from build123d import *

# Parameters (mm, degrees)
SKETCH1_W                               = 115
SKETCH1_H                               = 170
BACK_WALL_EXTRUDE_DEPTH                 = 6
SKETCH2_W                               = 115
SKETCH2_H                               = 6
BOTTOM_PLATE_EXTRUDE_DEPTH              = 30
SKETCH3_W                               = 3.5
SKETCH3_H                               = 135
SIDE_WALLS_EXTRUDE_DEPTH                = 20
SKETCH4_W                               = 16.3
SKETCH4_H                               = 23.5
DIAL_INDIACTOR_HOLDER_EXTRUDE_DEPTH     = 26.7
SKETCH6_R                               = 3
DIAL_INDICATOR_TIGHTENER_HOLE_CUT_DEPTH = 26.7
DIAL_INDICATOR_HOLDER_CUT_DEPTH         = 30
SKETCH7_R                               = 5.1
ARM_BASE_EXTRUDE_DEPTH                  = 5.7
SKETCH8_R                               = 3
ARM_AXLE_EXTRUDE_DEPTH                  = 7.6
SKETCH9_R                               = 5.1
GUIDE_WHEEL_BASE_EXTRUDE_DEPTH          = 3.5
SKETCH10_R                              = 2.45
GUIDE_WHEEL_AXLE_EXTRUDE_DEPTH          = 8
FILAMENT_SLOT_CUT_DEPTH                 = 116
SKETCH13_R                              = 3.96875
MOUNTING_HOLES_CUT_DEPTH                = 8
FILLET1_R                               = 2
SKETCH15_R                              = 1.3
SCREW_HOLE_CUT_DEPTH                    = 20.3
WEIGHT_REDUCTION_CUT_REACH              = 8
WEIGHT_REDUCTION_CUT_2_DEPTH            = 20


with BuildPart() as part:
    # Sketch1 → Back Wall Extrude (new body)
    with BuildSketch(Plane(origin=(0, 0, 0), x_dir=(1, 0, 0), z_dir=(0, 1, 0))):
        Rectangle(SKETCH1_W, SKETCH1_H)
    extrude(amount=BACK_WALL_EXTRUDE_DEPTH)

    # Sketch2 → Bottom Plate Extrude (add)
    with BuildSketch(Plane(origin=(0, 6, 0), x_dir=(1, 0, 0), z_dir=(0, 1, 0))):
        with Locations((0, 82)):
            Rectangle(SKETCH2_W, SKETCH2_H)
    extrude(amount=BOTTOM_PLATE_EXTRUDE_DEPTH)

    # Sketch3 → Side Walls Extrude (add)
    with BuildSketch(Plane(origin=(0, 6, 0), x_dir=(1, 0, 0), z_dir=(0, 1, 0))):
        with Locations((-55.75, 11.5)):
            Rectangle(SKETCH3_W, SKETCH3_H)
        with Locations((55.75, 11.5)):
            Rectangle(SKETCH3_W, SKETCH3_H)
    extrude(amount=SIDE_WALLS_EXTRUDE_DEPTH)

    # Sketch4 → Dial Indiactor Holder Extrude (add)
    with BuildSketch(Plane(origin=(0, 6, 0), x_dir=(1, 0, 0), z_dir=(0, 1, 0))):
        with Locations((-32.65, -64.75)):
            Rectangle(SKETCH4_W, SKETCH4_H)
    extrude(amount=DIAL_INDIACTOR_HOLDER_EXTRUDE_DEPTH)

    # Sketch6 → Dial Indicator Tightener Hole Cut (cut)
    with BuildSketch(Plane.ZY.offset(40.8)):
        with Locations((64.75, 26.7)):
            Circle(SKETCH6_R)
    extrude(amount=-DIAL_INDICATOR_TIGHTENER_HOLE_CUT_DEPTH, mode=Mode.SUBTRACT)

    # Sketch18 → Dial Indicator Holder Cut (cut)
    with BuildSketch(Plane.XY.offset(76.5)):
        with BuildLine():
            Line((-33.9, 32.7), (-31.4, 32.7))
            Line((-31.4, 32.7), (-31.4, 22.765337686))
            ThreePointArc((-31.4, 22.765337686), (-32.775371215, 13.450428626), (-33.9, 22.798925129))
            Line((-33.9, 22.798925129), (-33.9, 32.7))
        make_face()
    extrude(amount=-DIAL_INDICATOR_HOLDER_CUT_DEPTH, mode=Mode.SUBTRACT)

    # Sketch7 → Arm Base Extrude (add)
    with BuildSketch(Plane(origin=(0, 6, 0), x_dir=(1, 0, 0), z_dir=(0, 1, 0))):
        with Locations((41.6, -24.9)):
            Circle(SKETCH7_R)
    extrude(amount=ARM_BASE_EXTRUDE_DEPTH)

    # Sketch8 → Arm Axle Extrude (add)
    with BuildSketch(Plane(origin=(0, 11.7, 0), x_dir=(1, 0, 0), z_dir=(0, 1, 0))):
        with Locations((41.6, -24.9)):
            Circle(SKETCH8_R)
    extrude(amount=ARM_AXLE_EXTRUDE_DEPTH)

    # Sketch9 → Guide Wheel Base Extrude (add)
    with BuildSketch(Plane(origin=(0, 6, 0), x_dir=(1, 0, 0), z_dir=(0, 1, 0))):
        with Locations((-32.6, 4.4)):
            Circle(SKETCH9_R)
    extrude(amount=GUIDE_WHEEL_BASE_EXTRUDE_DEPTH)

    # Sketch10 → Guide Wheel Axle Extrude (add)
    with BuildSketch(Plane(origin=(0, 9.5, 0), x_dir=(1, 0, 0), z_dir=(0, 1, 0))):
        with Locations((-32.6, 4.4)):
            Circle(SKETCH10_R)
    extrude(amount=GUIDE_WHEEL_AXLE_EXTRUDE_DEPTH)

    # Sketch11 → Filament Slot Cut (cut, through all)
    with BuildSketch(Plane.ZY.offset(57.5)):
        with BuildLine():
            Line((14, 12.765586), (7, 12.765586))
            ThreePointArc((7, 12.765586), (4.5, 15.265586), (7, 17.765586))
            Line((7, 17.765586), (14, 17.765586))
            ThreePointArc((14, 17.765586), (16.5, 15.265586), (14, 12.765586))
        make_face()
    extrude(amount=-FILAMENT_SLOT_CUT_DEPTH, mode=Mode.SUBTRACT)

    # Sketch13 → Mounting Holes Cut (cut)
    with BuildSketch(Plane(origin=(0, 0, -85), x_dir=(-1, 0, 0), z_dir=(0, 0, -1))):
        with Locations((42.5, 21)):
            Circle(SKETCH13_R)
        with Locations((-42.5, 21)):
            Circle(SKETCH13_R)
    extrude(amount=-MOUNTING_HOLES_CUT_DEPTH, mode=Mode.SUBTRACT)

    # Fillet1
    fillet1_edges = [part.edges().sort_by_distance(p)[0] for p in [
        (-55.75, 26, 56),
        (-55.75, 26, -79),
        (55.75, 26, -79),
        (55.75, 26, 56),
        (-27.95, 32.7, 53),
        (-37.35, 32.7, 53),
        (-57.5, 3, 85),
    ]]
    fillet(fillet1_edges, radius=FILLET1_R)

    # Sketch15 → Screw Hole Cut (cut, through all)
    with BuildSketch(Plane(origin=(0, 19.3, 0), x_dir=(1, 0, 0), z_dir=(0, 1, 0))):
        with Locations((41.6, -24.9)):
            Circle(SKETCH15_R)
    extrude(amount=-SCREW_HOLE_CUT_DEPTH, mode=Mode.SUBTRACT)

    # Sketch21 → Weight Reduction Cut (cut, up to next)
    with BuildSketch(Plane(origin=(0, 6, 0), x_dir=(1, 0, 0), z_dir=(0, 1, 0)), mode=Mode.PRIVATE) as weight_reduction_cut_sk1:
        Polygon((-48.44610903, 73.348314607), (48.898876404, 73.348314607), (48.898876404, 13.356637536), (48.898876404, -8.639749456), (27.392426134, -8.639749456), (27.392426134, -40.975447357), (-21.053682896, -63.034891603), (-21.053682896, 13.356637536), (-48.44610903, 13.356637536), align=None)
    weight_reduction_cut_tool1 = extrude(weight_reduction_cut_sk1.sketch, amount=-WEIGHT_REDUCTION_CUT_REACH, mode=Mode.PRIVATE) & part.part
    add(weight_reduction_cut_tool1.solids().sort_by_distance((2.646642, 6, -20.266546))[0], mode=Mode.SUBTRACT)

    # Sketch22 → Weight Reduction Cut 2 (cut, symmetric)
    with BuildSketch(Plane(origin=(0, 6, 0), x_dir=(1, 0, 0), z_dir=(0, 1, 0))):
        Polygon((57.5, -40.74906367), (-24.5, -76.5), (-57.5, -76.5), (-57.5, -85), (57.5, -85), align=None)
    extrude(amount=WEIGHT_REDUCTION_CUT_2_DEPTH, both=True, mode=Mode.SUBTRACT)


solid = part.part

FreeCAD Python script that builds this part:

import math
import FreeCAD as App
import Part
import Sketcher

V = App.Vector
Q = App.Units.Quantity


def edges_at(feature, points):
    """Names of the edges that pass closest to the given points."""
    edges = feature.Shape.Edges
    near = lambda p: min(range(len(edges)), key=lambda i: edges[i].distToShape(Part.Vertex(*p))[0])
    return sorted({f"Edge{near(p) + 1}" for p in points})

doc = App.newDocument("Part")
body = doc.addObject("PartDesign::Body", "Body")

# Sketch on XZ plane
sketch1 = body.newObject("Sketcher::SketchObject", "Sketch")
sketch1.AttachmentSupport = (doc.getObject("XZ_Plane"), [""])
sketch1.MapMode = "FlatFace"
sketch1.addGeometry([
    Part.LineSegment(V(-58, -85, 0), V(-58, 85, 0)),
    Part.LineSegment(V(-58, 85, 0), V(58, 85, 0)),
    Part.LineSegment(V(58, 85, 0), V(58, -85, 0)),
    Part.LineSegment(V(58, -85, 0), V(-58, -85, 0)),
], False)
sketch1.addConstraint([
    Sketcher.Constraint("Coincident", 0, 2, 1, 1),
    Sketcher.Constraint("Coincident", 1, 2, 2, 1),
    Sketcher.Constraint("Coincident", 2, 2, 3, 1),
    Sketcher.Constraint("Coincident", 3, 2, 0, 1),
    Sketcher.Constraint("Vertical", 0),
    Sketcher.Constraint("Horizontal", 1),
    Sketcher.Constraint("Vertical", 2),
    Sketcher.Constraint("Horizontal", 3),
    Sketcher.Constraint("Symmetric", 0, 2, 2, 2, -1, 1),
    Sketcher.Constraint("DistanceX", 1, 1, 1, 2, Q("115 mm")),
    Sketcher.Constraint("DistanceY", 0, 1, 0, 2, Q("170 mm")),
])
pad1 = body.newObject("PartDesign::Pad", "Pad")
pad1.Profile = sketch1
pad1.Length = 6
pad1.Reversed = True

# Sketch on XZ plane
sketch2 = body.newObject("Sketcher::SketchObject", "Sketch001")
sketch2.AttachmentSupport = (doc.getObject("XZ_Plane"), [""])
sketch2.MapMode = "FlatFace"
sketch2.AttachmentOffset = App.Placement(V(0, 0, -6), App.Rotation())
sketch2.addGeometry([
    Part.LineSegment(V(-58, -85, 0), V(-58, -79, 0)),
    Part.LineSegment(V(-58, -79, 0), V(58, -79, 0)),
    Part.LineSegment(V(58, -79, 0), V(58, -85, 0)),
    Part.LineSegment(V(58, -85, 0), V(-58, -85, 0)),
], False)
sketch2.addConstraint([
    Sketcher.Constraint("Coincident", 0, 2, 1, 1),
    Sketcher.Constraint("Coincident", 1, 2, 2, 1),
    Sketcher.Constraint("Coincident", 2, 2, 3, 1),
    Sketcher.Constraint("Coincident", 3, 2, 0, 1),
    Sketcher.Constraint("Vertical", 0),
    Sketcher.Constraint("Horizontal", 1),
    Sketcher.Constraint("Vertical", 2),
    Sketcher.Constraint("Horizontal", 3),
    Sketcher.Constraint("DistanceX", 1, 1, 1, 2, Q("115 mm")),
    Sketcher.Constraint("DistanceY", 0, 1, 0, 2, Q("6 mm")),
    Sketcher.Constraint("DistanceY", 0, 2, -1, 1, Q("79 mm")),
    Sketcher.Constraint("DistanceX", 0, 2, -1, 1, Q("57.5 mm")),
])
pad2 = body.newObject("PartDesign::Pad", "Pad001")
pad2.Profile = sketch2
pad2.Length = 30
pad2.Reversed = True

# Sketch on XZ plane
sketch3 = body.newObject("Sketcher::SketchObject", "Sketch002")
sketch3.AttachmentSupport = (doc.getObject("XZ_Plane"), [""])
sketch3.MapMode = "FlatFace"
sketch3.AttachmentOffset = App.Placement(V(0, 0, -6), App.Rotation())
sketch3.addGeometry([
    Part.LineSegment(V(-57.5, -79, 0), V(-57.5, 56, 0)),  # 0
    Part.LineSegment(V(-57.5, 56, 0), V(-54, 56, 0)),  # 1
    Part.LineSegment(V(-54, 56, 0), V(-54, -79, 0)),  # 2
    Part.LineSegment(V(-54, -79, 0), V(-57.5, -79, 0)),  # 3
    Part.LineSegment(V(54, -79, 0), V(54, 56, 0)),  # 4
    Part.LineSegment(V(54, 56, 0), V(57.5, 56, 0)),  # 5
    Part.LineSegment(V(57.5, 56, 0), V(57.5, -79, 0)),  # 6
    Part.LineSegment(V(57.5, -79, 0), V(54, -79, 0)),  # 7
], False)
sketch3.addConstraint([
    Sketcher.Constraint("Coincident", 0, 2, 1, 1),
    Sketcher.Constraint("Coincident", 1, 2, 2, 1),
    Sketcher.Constraint("Coincident", 2, 2, 3, 1),
    Sketcher.Constraint("Coincident", 3, 2, 0, 1),
    Sketcher.Constraint("Coincident", 4, 2, 5, 1),
    Sketcher.Constraint("Coincident", 5, 2, 6, 1),
    Sketcher.Constraint("Coincident", 6, 2, 7, 1),
    Sketcher.Constraint("Coincident", 7, 2, 4, 1),
    Sketcher.Constraint("Vertical", 0),
    Sketcher.Constraint("Horizontal", 1),
    Sketcher.Constraint("Vertical", 2),
    Sketcher.Constraint("Horizontal", 3),
    Sketcher.Constraint("Vertical", 4),
    Sketcher.Constraint("Horizontal", 5),
    Sketcher.Constraint("Vertical", 6),
    Sketcher.Constraint("Horizontal", 7),
    Sketcher.Constraint("Symmetric", 1, 2, 4, 2, -2),
    Sketcher.Constraint("Symmetric", 3, 2, 6, 2, -2),
    Sketcher.Constraint("DistanceY", 0, 1, 0, 2, Q("135 mm")),
    Sketcher.Constraint("DistanceX", 1, 1, 1, 2, Q("3.5 mm")),
    Sketcher.Constraint("DistanceY", -1, 1, 0, 2, Q("56 mm")),
    Sketcher.Constraint("DistanceX", 1, 2, -1, 1, Q("54 mm")),
])
pad3 = body.newObject("PartDesign::Pad", "Pad002")
pad3.Profile = sketch3
pad3.Length = 20
pad3.Reversed = True

# Sketch on XZ plane
sketch4 = body.newObject("Sketcher::SketchObject", "Sketch003")
sketch4.AttachmentSupport = (doc.getObject("XZ_Plane"), [""])
sketch4.MapMode = "FlatFace"
sketch4.AttachmentOffset = App.Placement(V(0, 0, -6), App.Rotation())
sketch4.addGeometry([
    Part.LineSegment(V(-41, 53, 0), V(-41, 76, 0)),
    Part.LineSegment(V(-41, 76, 0), V(-24, 76, 0)),
    Part.LineSegment(V(-24, 76, 0), V(-24, 53, 0)),
    Part.LineSegment(V(-24, 53, 0), V(-41, 53, 0)),
], False)
sketch4.addConstraint([
    Sketcher.Constraint("Coincident", 0, 2, 1, 1),
    Sketcher.Constraint("Coincident", 1, 2, 2, 1),
    Sketcher.Constraint("Coincident", 2, 2, 3, 1),
    Sketcher.Constraint("Coincident", 3, 2, 0, 1),
    Sketcher.Constraint("Vertical", 0),
    Sketcher.Constraint("Horizontal", 1),
    Sketcher.Constraint("Vertical", 2),
    Sketcher.Constraint("Horizontal", 3),
    Sketcher.Constraint("DistanceX", 1, 1, 1, 2, Q("16.3 mm")),
    Sketcher.Constraint("DistanceY", 0, 1, 0, 2, Q("23.5 mm")),
    Sketcher.Constraint("DistanceY", -1, 1, 2, 2, Q("53 mm")),
    Sketcher.Constraint("DistanceX", 0, 2, -1, 1, Q("40.8 mm")),
])
pad4 = body.newObject("PartDesign::Pad", "Pad003")
pad4.Profile = sketch4
pad4.Length = 26.7
pad4.Reversed = True

# Sketch on YZ plane
sketch5 = body.newObject("Sketcher::SketchObject", "Sketch004")
sketch5.AttachmentSupport = (doc.getObject("YZ_Plane"), [""])
sketch5.MapMode = "FlatFace"
sketch5.AttachmentOffset = App.Placement(V(0, 0, -40.8), App.Rotation())
sketch5.addGeometry(Part.Circle(V(26.7, 64.8, 0), V(0, 0, 1), 3), False)
sketch5.addConstraint([
    Sketcher.Constraint("Diameter", 0, Q("6 mm")),
    Sketcher.Constraint("DistanceX", -1, 1, 0, 3, Q("26.7 mm")),
    Sketcher.Constraint("DistanceY", -1, 1, 0, 3, Q("64.75 mm")),
])
pocket1 = body.newObject("PartDesign::Pocket", "Pocket")
pocket1.Profile = sketch5
pocket1.Length = 26.7
pocket1.Reversed = True

# Sketch on XY plane
sketch6 = body.newObject("Sketcher::SketchObject", "Sketch005")
sketch6.AttachmentSupport = (doc.getObject("XY_Plane"), [""])
sketch6.MapMode = "FlatFace"
sketch6.AttachmentOffset = App.Placement(V(0, 0, 76.5), App.Rotation())
sketch6.addGeometry([
    Part.LineSegment(V(-31.4, 32.7, 0), V(-33.9, 32.7, 0)),
    Part.LineSegment(V(-33.9, 32.7, 0), V(-33.9, 22.8, 0)),
    Part.ArcOfCircle(Part.Circle(V(-32.7, 18.2, 0), V(0, 0, 1), 4.8), math.radians(104), math.radians(434)),
    Part.LineSegment(V(-31.4, 22.8, 0), V(-31.4, 32.7, 0)),
], False)
sketch6.addConstraint([
    Sketcher.Constraint("Coincident", 0, 2, 1, 1),
    Sketcher.Constraint("Coincident", 1, 2, 2, 1),
    Sketcher.Constraint("Coincident", 2, 2, 3, 1),
    Sketcher.Constraint("Coincident", 3, 2, 0, 1),
    Sketcher.Constraint("Horizontal", 0),
    Sketcher.Constraint("Vertical", 1),
    Sketcher.Constraint("Vertical", 3),
    Sketcher.Constraint("Radius", 2, Q("4.75 mm")),
    Sketcher.Constraint("DistanceX", 0, 2, 0, 1, Q("2.5 mm")),
    Sketcher.Constraint("DistanceY", -1, 1, 2, 3, Q("18.2 mm")),
    Sketcher.Constraint("DistanceX", 0, 2, -1, 1, Q("33.9 mm")),
    Sketcher.Constraint("DistanceY", -1, 1, 0, 2, Q("32.7 mm")),
    Sketcher.Constraint("DistanceY", 1, 2, 1, 1, Q("9.901075 mm")),
])
pocket2 = body.newObject("PartDesign::Pocket", "Pocket001")
pocket2.Profile = sketch6
pocket2.Length = 30

# Sketch on XZ plane
sketch7 = body.newObject("Sketcher::SketchObject", "Sketch006")
sketch7.AttachmentSupport = (doc.getObject("XZ_Plane"), [""])
sketch7.MapMode = "FlatFace"
sketch7.AttachmentOffset = App.Placement(V(0, 0, -6), App.Rotation())
sketch7.addGeometry(Part.Circle(V(42, 25, 0), V(0, 0, 1), 5), False)
sketch7.addConstraint([
    Sketcher.Constraint("Diameter", 0, Q("10.2 mm")),
    Sketcher.Constraint("DistanceX", -1, 1, 0, 3, Q("41.6 mm")),
    Sketcher.Constraint("DistanceY", -1, 1, 0, 3, Q("24.9 mm")),
])
pad5 = body.newObject("PartDesign::Pad", "Pad004")
pad5.Profile = sketch7
pad5.Length = 5.7
pad5.Reversed = True

# Sketch on XZ plane
sketch8 = body.newObject("Sketcher::SketchObject", "Sketch007")
sketch8.AttachmentSupport = (doc.getObject("XZ_Plane"), [""])
sketch8.MapMode = "FlatFace"
sketch8.AttachmentOffset = App.Placement(V(0, 0, -11.7), App.Rotation())
sketch8.addGeometry(Part.Circle(V(41.6, 24.9, 0), V(0, 0, 1), 3), False)
sketch8.addConstraint([
    Sketcher.Constraint("Diameter", 0, Q("6 mm")),
    Sketcher.Constraint("DistanceX", -1, 1, 0, 3, Q("41.6 mm")),
    Sketcher.Constraint("DistanceY", -1, 1, 0, 3, Q("24.9 mm")),
])
pad6 = body.newObject("PartDesign::Pad", "Pad005")
pad6.Profile = sketch8
pad6.Length = 7.6
pad6.Reversed = True

# Sketch on XZ plane
sketch9 = body.newObject("Sketcher::SketchObject", "Sketch008")
sketch9.AttachmentSupport = (doc.getObject("XZ_Plane"), [""])
sketch9.MapMode = "FlatFace"
sketch9.AttachmentOffset = App.Placement(V(0, 0, -6), App.Rotation())
sketch9.addGeometry(Part.Circle(V(-33, -4, 0), V(0, 0, 1), 5), False)
sketch9.addConstraint([
    Sketcher.Constraint("Diameter", 0, Q("10.2 mm")),
    Sketcher.Constraint("DistanceX", 0, 3, -1, 1, Q("32.6 mm")),
    Sketcher.Constraint("DistanceY", 0, 3, -1, 1, Q("4.4 mm")),
])
pad7 = body.newObject("PartDesign::Pad", "Pad006")
pad7.Profile = sketch9
pad7.Length = 3.5
pad7.Reversed = True

# Sketch on XZ plane
sketch10 = body.newObject("Sketcher::SketchObject", "Sketch009")
sketch10.AttachmentSupport = (doc.getObject("XZ_Plane"), [""])
sketch10.MapMode = "FlatFace"
sketch10.AttachmentOffset = App.Placement(V(0, 0, -9.5), App.Rotation())
sketch10.addGeometry(Part.Circle(V(-32.6, -4.4, 0), V(0, 0, 1), 2.5), False)
sketch10.addConstraint([
    Sketcher.Constraint("Diameter", 0, Q("4.9 mm")),
    Sketcher.Constraint("DistanceX", 0, 3, -1, 1, Q("32.6 mm")),
    Sketcher.Constraint("DistanceY", 0, 3, -1, 1, Q("4.4 mm")),
])
pad8 = body.newObject("PartDesign::Pad", "Pad007")
pad8.Profile = sketch10
pad8.Length = 8
pad8.Reversed = True

# Sketch on YZ plane
sketch11 = body.newObject("Sketcher::SketchObject", "Sketch010")
sketch11.AttachmentSupport = (doc.getObject("YZ_Plane"), [""])
sketch11.MapMode = "FlatFace"
sketch11.AttachmentOffset = App.Placement(V(0, 0, -57.5), App.Rotation())
sketch11.addGeometry([
    Part.LineSegment(V(12.8, 7, 0), V(12.8, 14, 0)),
    Part.ArcOfCircle(Part.Circle(V(15.3, 14, 0), V(0, 0, 1), 2.5), math.radians(0), math.radians(180)),
    Part.LineSegment(V(17.8, 14, 0), V(17.8, 7, 0)),
    Part.ArcOfCircle(Part.Circle(V(15.3, 7, 0), V(0, 0, 1), 2.5), math.radians(180), math.radians(360)),
], False)
sketch11.addConstraint([
    Sketcher.Constraint("Tangent", 0, 2, 1, 2),
    Sketcher.Constraint("Tangent", 1, 1, 2, 1),
    Sketcher.Constraint("Tangent", 2, 2, 3, 2),
    Sketcher.Constraint("Tangent", 3, 1, 0, 1),
    Sketcher.Constraint("Vertical", 0),
    Sketcher.Constraint("Vertical", 2),
    Sketcher.Constraint("Radius", 1, Q("2.5 mm")),
    Sketcher.Constraint("DistanceY", 0, 1, 0, 2, Q("7 mm")),
    Sketcher.Constraint("DistanceY", -1, 1, 1, 3, Q("14 mm")),
    Sketcher.Constraint("DistanceX", -1, 1, 1, 3, Q("15.265586 mm")),
])
pocket3 = body.newObject("PartDesign::Pocket", "Pocket002")
pocket3.Profile = sketch11
pocket3.Type = "ThroughAll"
pocket3.Reversed = True

# Sketch on XY plane
sketch12 = body.newObject("Sketcher::SketchObject", "Sketch011")
sketch12.AttachmentSupport = (doc.getObject("XY_Plane"), [""])
sketch12.MapMode = "FlatFace"
sketch12.AttachmentOffset = App.Placement(V(0, 0, -85), App.Rotation())
sketch12.addGeometry([
    Part.Circle(V(-42.5, 21, 0), V(0, 0, 1), 4),
    Part.Circle(V(42.5, 21, 0), V(0, 0, 1), 4),
], False)
sketch12.addConstraint([
    Sketcher.Constraint("Equal", 0, 1),
    Sketcher.Constraint("Symmetric", 0, 3, 1, 3, -2),
    Sketcher.Constraint("DistanceY", -1, 1, 0, 3, Q("21 mm")),
    Sketcher.Constraint("DistanceX", 0, 3, 1, 3, Q("85 mm")),
    Sketcher.Constraint("Diameter", 0, Q("7.9375 mm")),
])
pocket4 = body.newObject("PartDesign::Pocket", "Pocket003")
pocket4.Profile = sketch12
pocket4.Length = 8
pocket4.Reversed = True
doc.recompute()

fillet = body.newObject("PartDesign::Fillet", "Fillet")
fillet.Base = (pocket4, edges_at(pocket4, [
    (-55.75, 26, 56),
    (-55.75, 26, -79),
    (55.75, 26, -79),
    (55.75, 26, 56),
    (-27.95, 32.7, 53),
    (-37.35, 32.7, 53),
    (-57.5, 3, 85),
]))
fillet.Radius = 2

# Sketch on XZ plane
sketch13 = body.newObject("Sketcher::SketchObject", "Sketch012")
sketch13.AttachmentSupport = (doc.getObject("XZ_Plane"), [""])
sketch13.MapMode = "FlatFace"
sketch13.AttachmentOffset = App.Placement(V(0, 0, -19.3), App.Rotation())
sketch13.addGeometry(Part.Circle(V(41.6, 24.9, 0), V(0, 0, 1), 1.3), False)
sketch13.addConstraint([
    Sketcher.Constraint("Diameter", 0, Q("2.6 mm")),
    Sketcher.Constraint("DistanceX", -1, 1, 0, 3, Q("41.6 mm")),
    Sketcher.Constraint("DistanceY", -1, 1, 0, 3, Q("24.9 mm")),
])
pocket5 = body.newObject("PartDesign::Pocket", "Pocket004")
pocket5.Profile = sketch13
pocket5.Type = "ThroughAll"
pocket5.Reversed = True

# Sketch on XZ plane
sketch14 = body.newObject("Sketcher::SketchObject", "Sketch013")
sketch14.AttachmentSupport = (doc.getObject("XZ_Plane"), [""])
sketch14.MapMode = "FlatFace"
sketch14.AttachmentOffset = App.Placement(V(0, 0, -6), App.Rotation())
sketch14.addGeometry([
    Part.LineSegment(V(49, -73, 0), V(-48, -73, 0)),  # 0
    Part.LineSegment(V(-48, -73, 0), V(-48, -13, 0)),  # 1
    Part.LineSegment(V(-48, -13, 0), V(-21, -13, 0)),  # 2
    Part.LineSegment(V(-21, -13, 0), V(-21, 63, 0)),  # 3
    Part.LineSegment(V(-21, 63, 0), V(27, 41, 0)),  # 4
    Part.LineSegment(V(27, 41, 0), V(27, 9, 0)),  # 5
    Part.LineSegment(V(27, 9, 0), V(49, 9, 0)),  # 6
    Part.LineSegment(V(49, 9, 0), V(49, -73, 0)),  # 7
], False)
sketch14.addConstraint([
    Sketcher.Constraint("Coincident", 0, 2, 1, 1),
    Sketcher.Constraint("Coincident", 1, 2, 2, 1),
    Sketcher.Constraint("Coincident", 2, 2, 3, 1),
    Sketcher.Constraint("Coincident", 3, 2, 4, 1),
    Sketcher.Constraint("Coincident", 4, 2, 5, 1),
    Sketcher.Constraint("Coincident", 5, 2, 6, 1),
    Sketcher.Constraint("Coincident", 6, 2, 7, 1),
    Sketcher.Constraint("Coincident", 7, 2, 0, 1),
    Sketcher.Constraint("Horizontal", 0),
    Sketcher.Constraint("Vertical", 1),
    Sketcher.Constraint("Horizontal", 2),
    Sketcher.Constraint("Vertical", 3),
    Sketcher.Constraint("Vertical", 5),
    Sketcher.Constraint("Horizontal", 6),
    Sketcher.Constraint("Vertical", 7),
    Sketcher.Constraint("DistanceX", 6, 1, 6, 2, Q("21.50645 mm")),
    Sketcher.Constraint("DistanceY", 3, 1, 3, 2, Q("76.391529 mm")),
    Sketcher.Constraint("Distance", 4, Q("53.231988 mm")),
    Sketcher.Constraint("DistanceX", 0, 2, 0, 1, Q("97.344985 mm")),
    Sketcher.Constraint("DistanceX", 2, 1, 2, 2, Q("27.392426 mm")),
    Sketcher.Constraint("DistanceY", 1, 1, 1, 2, Q("59.991677 mm")),
    Sketcher.Constraint("DistanceY", 5, 2, 5, 1, Q("32.335698 mm")),
    Sketcher.Constraint("DistanceX", 0, 2, -1, 1, Q("48.446109 mm")),
    Sketcher.Constraint("DistanceY", -1, 1, 3, 2, Q("63.034892 mm")),
])
pocket6 = body.newObject("PartDesign::Pocket", "Pocket005")
pocket6.Profile = sketch14
pocket6.Type = "UpToFirst"
pocket6.Reversed = True

# Sketch on XZ plane
sketch15 = body.newObject("Sketcher::SketchObject", "Sketch014")
sketch15.AttachmentSupport = (doc.getObject("XZ_Plane"), [""])
sketch15.MapMode = "FlatFace"
sketch15.AttachmentOffset = App.Placement(V(0, 0, -6), App.Rotation())
sketch15.addGeometry([
    Part.LineSegment(V(58, 41, 0), V(-24, 76, 0)),  # 0
    Part.LineSegment(V(-24, 76, 0), V(-58, 76, 0)),  # 1
    Part.LineSegment(V(-58, 76, 0), V(-58, 85, 0)),  # 2
    Part.LineSegment(V(-58, 85, 0), V(58, 85, 0)),  # 3
    Part.LineSegment(V(58, 85, 0), V(58, 41, 0)),  # 4
], False)
sketch15.addConstraint([
    Sketcher.Constraint("Coincident", 0, 2, 1, 1),
    Sketcher.Constraint("Coincident", 1, 2, 2, 1),
    Sketcher.Constraint("Coincident", 2, 2, 3, 1),
    Sketcher.Constraint("Coincident", 3, 2, 4, 1),
    Sketcher.Constraint("Coincident", 4, 2, 0, 1),
    Sketcher.Constraint("Horizontal", 1),
    Sketcher.Constraint("Vertical", 2),
    Sketcher.Constraint("Horizontal", 3),
    Sketcher.Constraint("Vertical", 4),
    Sketcher.Constraint("DistanceX", 1, 2, 1, 1, Q("33 mm")),
    Sketcher.Constraint("DistanceX", 3, 1, 3, 2, Q("115 mm")),
    Sketcher.Constraint("DistanceY", 2, 1, 2, 2, Q("8.5 mm")),
    Sketcher.Constraint("DistanceY", -1, 1, 2, 2, Q("85 mm")),
    Sketcher.Constraint("DistanceX", 0, 2, -1, 1, Q("24.5 mm")),
    Sketcher.Constraint("DistanceY", 4, 2, 4, 1, Q("44.250936 mm")),
])
pocket7 = body.newObject("PartDesign::Pocket", "Pocket006")
pocket7.Profile = sketch15
pocket7.Length = 40
pocket7.Midplane = True

doc.recompute()
